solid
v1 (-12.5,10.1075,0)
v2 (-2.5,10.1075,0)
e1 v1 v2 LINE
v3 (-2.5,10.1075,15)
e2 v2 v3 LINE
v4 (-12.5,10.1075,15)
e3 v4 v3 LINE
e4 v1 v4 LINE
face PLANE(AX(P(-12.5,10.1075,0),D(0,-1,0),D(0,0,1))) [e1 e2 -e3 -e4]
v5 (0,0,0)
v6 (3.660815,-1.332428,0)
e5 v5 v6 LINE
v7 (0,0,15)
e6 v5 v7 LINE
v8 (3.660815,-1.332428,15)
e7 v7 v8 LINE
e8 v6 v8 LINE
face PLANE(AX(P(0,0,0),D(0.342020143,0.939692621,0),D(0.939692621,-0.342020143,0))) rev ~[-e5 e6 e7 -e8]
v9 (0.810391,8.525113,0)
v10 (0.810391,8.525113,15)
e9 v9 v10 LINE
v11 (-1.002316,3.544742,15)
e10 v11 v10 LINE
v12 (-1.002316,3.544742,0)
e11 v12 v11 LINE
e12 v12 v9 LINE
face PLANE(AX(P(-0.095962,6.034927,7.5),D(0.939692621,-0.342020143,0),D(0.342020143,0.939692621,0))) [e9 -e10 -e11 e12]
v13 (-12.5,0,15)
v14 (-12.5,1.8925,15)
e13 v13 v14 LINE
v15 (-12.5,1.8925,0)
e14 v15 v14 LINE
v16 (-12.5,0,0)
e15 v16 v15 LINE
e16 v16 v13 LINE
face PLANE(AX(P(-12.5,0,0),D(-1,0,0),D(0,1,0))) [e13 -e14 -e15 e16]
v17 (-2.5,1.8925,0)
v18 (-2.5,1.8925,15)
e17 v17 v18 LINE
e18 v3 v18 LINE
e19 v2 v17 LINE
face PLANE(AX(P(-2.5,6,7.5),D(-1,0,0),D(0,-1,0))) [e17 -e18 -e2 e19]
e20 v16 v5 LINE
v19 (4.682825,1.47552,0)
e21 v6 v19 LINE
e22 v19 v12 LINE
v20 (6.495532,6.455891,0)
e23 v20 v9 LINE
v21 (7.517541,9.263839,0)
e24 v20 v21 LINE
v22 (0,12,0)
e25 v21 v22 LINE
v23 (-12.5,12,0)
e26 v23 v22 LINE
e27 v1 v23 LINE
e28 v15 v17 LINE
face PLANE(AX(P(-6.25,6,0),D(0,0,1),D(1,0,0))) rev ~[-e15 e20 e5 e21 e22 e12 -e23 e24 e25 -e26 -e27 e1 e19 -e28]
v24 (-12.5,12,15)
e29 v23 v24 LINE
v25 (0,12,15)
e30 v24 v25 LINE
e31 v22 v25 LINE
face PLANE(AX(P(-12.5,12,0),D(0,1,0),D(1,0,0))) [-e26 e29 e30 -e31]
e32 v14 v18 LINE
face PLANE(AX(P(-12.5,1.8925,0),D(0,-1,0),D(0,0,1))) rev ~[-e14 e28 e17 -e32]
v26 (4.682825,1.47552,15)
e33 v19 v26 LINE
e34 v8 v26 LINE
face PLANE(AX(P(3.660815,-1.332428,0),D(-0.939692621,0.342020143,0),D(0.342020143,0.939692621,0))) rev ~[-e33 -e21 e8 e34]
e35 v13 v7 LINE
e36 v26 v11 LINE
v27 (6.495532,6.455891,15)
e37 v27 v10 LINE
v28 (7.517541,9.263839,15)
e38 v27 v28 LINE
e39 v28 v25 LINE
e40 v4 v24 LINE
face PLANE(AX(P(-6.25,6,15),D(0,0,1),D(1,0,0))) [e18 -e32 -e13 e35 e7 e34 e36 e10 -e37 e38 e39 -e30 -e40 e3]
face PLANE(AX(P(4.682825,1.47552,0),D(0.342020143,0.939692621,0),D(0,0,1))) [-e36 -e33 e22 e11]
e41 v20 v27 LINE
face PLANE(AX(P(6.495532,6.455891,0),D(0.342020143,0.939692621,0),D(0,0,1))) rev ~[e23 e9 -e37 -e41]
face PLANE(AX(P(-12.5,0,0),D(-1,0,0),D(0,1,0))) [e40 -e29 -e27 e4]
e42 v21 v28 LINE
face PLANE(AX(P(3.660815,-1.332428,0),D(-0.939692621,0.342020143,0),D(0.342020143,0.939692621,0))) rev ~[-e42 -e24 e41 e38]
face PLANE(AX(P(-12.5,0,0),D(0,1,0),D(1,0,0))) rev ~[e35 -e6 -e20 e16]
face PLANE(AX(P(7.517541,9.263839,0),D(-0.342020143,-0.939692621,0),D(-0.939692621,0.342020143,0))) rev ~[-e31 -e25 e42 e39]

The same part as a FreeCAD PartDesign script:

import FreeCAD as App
import Part
import Sketcher
Q = App.Units.Quantity


def add_polygon(sketch, points):
    """Adds a closed chain of lines whose ends are joined by coincident constraints."""
    first, n = sketch.GeometryCount, len(points)
    for a, b in zip(points, points[1:] + points[:1]):
        sketch.addGeometry(Part.LineSegment(App.Vector(*a, 0), App.Vector(*b, 0)), False)
    for i in range(n):
        sketch.addConstraint(Sketcher.Constraint("Coincident", first + i, 2, first + (i + 1) % n, 1))

doc = App.newDocument("Part")
body = doc.addObject("PartDesign::Body", "Body")

# Sketch on XY plane
sketch1 = doc.addObject("Sketcher::SketchObject", "Sketch")
body.addObject(sketch1)
sketch1.AttachmentSupport = (doc.XY_Plane, [""])
sketch1.MapMode = "FlatFace"
add_polygon(sketch1, [(-12.5, 12), (-12.5, 0), (0, 0), (3.7, -1.3), (7.5, 9.3), (0, 12)])  # lines 0-5
sketch1.addConstraint([
    Sketcher.Constraint("Vertical", 0),
    Sketcher.Constraint("Horizontal", 1),
    Sketcher.Constraint("Horizontal", 5),
    Sketcher.Constraint("Coincident", 1, 2, -1, 1),
    Sketcher.Constraint("PointOnObject", 4, 2, -2),
    Sketcher.Constraint("Perpendicular", 2, 3),
    Sketcher.Constraint("Perpendicular", 3, 4),
    Sketcher.Constraint("DistanceY", 0, 2, 0, 1, 12.0),
    Sketcher.Constraint("Angle", 2, Q("-20 deg")),
    Sketcher.Constraint("Distance", 4, 8.0),
    Sketcher.Constraint("DistanceX", 1, 1, 1, 2, 12.5),
])
pad1 = doc.addObject("PartDesign::Pad", "Pad")
body.addObject(pad1)
pad1.Profile = sketch1
pad1.Length = 15

# Sketch on YZ plane
sketch2 = doc.addObject("Sketcher::SketchObject", "Sketch001")
body.addObject(sketch2)
sketch2.AttachmentSupport = (doc.YZ_Plane, [""])
sketch2.MapMode = "FlatFace"
sketch2.AttachmentOffset = App.Placement(App.Vector(0, 0, -12.5), App.Rotation())
add_polygon(sketch2, [(10, 15), (10, 0), (2, 0), (2, 15)])  # lines 0-3
sketch2.addConstraint([
    Sketcher.Constraint("Vertical", 0),
    Sketcher.Constraint("Horizontal", 1),
    Sketcher.Constraint("Vertical", 2),
    Sketcher.Constraint("Horizontal", 3),
    Sketcher.Constraint("PointOnObject", 0, 2, -1),
    Sketcher.Constraint("DistanceY", 0, 2, 0, 1, 15.0),
    Sketcher.Constraint("DistanceX", 1, 2, 1, 1, 8.215),
    Sketcher.Constraint("DistanceX", -1, 1, 0, 2, 10.1075),
])
pocket1 = doc.addObject("PartDesign::Pocket", "Pocket")
body.addObject(pocket1)
pocket1.Profile = sketch2
pocket1.Length = 10
pocket1.Reversed = True

# Sketch on an angled plane
sketch3 = doc.addObject("Sketcher::SketchObject", "Sketch002")
body.addObject(sketch3)
sketch3.Placement = App.Placement(App.Vector(3.660815, -1.332428, 0), App.Rotation(App.Vector(0.342020143, 0.939692621, 0), App.Vector(0, 0, 1), App.Vector(0.939692621, -0.342020143, 0), "ZXY"))
add_polygon(sketch3, [(3, 15), (3, 0), (8, 0), (8, 15)])  # lines 0-3
sketch3.addConstraint([
    Sketcher.Constraint("Vertical", 0),
    Sketcher.Constraint("Horizontal", 1),
    Sketcher.Constraint("Vertical", 2),
    Sketcher.Constraint("Horizontal", 3),
    Sketcher.Constraint("PointOnObject", 0, 2, -1),
    Sketcher.Constraint("DistanceY", 0, 2, 0, 1, 15.0),
    Sketcher.Constraint("DistanceX", 1, 1, 1, 2, 5.3),
    Sketcher.Constraint("DistanceX", -1, 1, 0, 2, 2.988156),
])
pocket2 = doc.addObject("PartDesign::Pocket", "Pocket001")
body.addObject(pocket2)
pocket2.Profile = sketch3
pocket2.Length = 6.05

doc.recompute()
